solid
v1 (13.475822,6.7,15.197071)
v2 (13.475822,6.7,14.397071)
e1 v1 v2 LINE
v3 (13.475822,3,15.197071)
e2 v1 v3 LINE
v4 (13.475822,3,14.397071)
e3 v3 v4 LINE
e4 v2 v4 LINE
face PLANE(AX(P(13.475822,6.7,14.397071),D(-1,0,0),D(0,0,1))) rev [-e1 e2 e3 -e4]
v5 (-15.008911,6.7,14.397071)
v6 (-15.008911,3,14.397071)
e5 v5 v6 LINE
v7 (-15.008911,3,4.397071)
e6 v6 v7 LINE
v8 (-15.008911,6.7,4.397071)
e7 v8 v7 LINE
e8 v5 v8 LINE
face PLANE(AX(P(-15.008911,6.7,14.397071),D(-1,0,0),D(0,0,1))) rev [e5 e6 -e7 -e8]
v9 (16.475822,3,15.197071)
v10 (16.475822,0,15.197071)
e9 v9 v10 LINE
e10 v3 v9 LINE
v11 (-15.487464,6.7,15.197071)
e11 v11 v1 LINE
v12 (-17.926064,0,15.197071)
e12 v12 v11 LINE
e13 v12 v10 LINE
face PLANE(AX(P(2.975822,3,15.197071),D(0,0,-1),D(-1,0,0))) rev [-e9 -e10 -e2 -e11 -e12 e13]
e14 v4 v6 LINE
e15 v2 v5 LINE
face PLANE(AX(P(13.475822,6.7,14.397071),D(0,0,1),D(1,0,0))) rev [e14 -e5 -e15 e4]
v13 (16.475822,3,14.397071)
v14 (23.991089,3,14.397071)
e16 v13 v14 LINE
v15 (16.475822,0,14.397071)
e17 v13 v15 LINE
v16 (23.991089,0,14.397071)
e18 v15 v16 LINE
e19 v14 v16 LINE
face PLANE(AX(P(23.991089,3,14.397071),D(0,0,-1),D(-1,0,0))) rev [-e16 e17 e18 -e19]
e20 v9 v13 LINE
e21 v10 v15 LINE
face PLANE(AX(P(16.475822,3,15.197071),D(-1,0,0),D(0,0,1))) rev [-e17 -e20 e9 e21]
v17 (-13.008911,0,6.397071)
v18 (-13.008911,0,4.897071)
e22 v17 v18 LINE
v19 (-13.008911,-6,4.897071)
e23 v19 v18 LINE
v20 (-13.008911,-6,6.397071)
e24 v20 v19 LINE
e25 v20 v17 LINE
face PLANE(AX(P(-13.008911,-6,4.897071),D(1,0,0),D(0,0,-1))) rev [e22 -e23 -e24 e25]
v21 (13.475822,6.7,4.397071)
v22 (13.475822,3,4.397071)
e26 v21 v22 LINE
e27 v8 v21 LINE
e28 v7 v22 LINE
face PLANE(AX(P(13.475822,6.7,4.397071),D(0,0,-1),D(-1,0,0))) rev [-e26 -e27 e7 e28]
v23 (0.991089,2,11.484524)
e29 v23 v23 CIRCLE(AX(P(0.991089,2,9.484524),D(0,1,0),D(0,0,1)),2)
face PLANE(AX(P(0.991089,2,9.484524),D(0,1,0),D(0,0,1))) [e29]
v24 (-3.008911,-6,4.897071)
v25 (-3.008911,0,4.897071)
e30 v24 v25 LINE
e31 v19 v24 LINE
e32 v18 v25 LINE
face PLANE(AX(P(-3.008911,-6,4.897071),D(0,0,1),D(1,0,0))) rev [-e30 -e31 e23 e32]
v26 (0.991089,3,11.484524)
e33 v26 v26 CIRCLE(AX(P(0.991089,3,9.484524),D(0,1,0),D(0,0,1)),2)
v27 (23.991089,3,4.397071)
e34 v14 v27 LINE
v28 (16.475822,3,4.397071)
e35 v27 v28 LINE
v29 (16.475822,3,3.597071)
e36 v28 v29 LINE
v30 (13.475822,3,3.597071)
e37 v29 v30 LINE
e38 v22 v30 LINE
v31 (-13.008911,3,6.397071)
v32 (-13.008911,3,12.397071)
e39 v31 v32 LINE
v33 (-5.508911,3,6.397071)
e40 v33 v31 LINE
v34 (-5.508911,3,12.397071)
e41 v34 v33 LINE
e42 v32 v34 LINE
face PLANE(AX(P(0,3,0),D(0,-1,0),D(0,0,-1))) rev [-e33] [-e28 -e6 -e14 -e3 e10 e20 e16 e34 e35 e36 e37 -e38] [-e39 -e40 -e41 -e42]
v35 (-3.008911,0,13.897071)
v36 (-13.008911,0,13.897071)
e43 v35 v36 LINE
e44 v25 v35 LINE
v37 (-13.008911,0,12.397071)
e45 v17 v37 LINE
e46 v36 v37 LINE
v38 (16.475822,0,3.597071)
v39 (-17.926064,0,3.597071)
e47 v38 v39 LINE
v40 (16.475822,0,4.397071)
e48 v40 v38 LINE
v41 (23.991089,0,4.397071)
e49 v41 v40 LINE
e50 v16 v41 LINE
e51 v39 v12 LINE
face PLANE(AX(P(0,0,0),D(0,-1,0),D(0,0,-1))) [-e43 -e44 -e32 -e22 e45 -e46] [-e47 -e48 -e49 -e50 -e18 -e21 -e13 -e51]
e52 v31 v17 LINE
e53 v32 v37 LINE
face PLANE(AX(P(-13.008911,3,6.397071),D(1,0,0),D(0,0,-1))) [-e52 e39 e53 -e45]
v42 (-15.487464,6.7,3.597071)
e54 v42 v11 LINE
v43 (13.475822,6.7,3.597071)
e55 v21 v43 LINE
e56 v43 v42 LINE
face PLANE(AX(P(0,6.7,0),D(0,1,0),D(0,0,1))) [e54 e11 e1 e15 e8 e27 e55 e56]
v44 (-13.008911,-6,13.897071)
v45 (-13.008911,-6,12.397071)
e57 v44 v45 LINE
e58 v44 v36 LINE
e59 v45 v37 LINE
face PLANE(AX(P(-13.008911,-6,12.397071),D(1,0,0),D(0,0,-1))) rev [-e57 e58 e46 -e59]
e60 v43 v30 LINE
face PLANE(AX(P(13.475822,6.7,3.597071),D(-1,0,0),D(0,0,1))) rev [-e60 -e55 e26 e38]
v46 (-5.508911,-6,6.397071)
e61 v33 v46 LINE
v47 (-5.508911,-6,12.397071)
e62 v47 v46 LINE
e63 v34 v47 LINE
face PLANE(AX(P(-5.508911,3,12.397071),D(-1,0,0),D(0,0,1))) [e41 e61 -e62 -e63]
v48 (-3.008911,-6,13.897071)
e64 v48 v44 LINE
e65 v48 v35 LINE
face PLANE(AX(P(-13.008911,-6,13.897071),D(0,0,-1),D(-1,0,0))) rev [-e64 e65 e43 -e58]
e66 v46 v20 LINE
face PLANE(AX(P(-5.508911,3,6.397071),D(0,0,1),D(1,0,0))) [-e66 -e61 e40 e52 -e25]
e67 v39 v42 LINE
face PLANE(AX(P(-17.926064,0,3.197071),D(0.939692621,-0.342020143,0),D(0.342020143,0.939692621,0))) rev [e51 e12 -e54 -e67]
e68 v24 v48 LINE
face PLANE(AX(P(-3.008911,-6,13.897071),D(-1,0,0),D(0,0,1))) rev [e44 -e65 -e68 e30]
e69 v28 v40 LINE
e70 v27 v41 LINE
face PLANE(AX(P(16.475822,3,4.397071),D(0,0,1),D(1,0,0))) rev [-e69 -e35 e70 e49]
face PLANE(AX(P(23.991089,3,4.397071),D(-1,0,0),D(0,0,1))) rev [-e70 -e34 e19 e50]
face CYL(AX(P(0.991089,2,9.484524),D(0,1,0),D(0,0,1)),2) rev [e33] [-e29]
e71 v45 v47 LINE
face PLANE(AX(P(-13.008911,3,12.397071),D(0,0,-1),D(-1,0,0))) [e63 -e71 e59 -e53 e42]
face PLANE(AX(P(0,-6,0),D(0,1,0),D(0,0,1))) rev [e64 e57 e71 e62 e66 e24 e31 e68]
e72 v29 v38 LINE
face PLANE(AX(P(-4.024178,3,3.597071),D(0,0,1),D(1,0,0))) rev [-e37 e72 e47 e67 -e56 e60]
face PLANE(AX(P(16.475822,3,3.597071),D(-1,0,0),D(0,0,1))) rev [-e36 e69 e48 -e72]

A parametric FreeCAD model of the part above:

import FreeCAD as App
import Part
import Sketcher
Q = App.Units.Quantity


def add_polygon(sketch, points):
    """Adds a closed chain of lines whose ends are joined by coincident constraints."""
    first, n = sketch.GeometryCount, len(points)
    for a, b in zip(points, points[1:] + points[:1]):
        sketch.addGeometry(Part.LineSegment(App.Vector(*a, 0), App.Vector(*b, 0)), False)
    for i in range(n):
        sketch.addConstraint(Sketcher.Constraint("Coincident", first + i, 2, first + (i + 1) % n, 1))

doc = App.newDocument("Part")
body = doc.addObject("PartDesign::Body", "Body")

# Sketch on XZ plane
sketch1 = body.newObject("Sketcher::SketchObject", "Sketch")
sketch1.AttachmentSupport = (doc.getObject("XZ_Plane"), [""])
sketch1.MapMode = "FlatFace"
add_polygon(sketch1, [(24, 14.4), (24, 4.4), (16.5, 4.4), (16.5, 3.6), (-16, 3.6), (-16, 15.2), (16.5, 15.2), (16.5, 14.4)])  # lines 0-7
add_polygon(sketch1, [(-13, 12.4), (-13, 6.4), (-5.5, 6.4), (-5.5, 12.4)])  # lines 8-11
sketch1.addConstraint([
    Sketcher.Constraint("Vertical", 0),
    Sketcher.Constraint("Horizontal", 1),
    Sketcher.Constraint("Vertical", 2),
    Sketcher.Constraint("Horizontal", 3),
    Sketcher.Constraint("Vertical", 4),
    Sketcher.Constraint("Horizontal", 5),
    Sketcher.Constraint("Vertical", 6),
    Sketcher.Constraint("Horizontal", 7),
    Sketcher.Constraint("Vertical", 8),
    Sketcher.Constraint("Horizontal", 9),
    Sketcher.Constraint("Vertical", 10),
    Sketcher.Constraint("Horizontal", 11),
    Sketcher.Constraint("Vertical", 2, 2, 5, 2),
    Sketcher.Constraint("Equal", 2, 6),
    Sketcher.Constraint("DistanceY", 0, 2, 0, 1, Q("10 mm")),
    Sketcher.Constraint("DistanceY", 8, 2, 8, 1, Q("6 mm")),
    Sketcher.Constraint("DistanceX", 9, 1, 9, 2, Q("7.5 mm")),
    Sketcher.Constraint("DistanceY", 2, 2, 2, 1, Q("0.8 mm")),
    Sketcher.Constraint("DistanceX", 3, 2, 0, 2, Q("40 mm")),
    Sketcher.Constraint("DistanceX", 3, 2, 8, 2, Q("3 mm")),
    Sketcher.Constraint("DistanceY", 1, 2, 8, 2, Q("2 mm")),
    Sketcher.Constraint("DistanceX", 1, 2, 1, 1, Q("7.515267 mm")),
    Sketcher.Constraint("DistanceX", -1, 1, 0, 2, Q("23.991089 mm")),
    Sketcher.Constraint("DistanceY", -1, 1, 0, 2, Q("4.397071 mm")),
])
pad1 = body.newObject("PartDesign::Pad", "Pad")
pad1.Profile = sketch1
pad1.Length = 3
pad1.Reversed = True

# Sketch on XZ plane
sketch2 = body.newObject("Sketcher::SketchObject", "Sketch001")
sketch2.AttachmentSupport = (doc.getObject("XZ_Plane"), [""])
sketch2.MapMode = "FlatFace"
add_polygon(sketch2, [(-13, 13.9), (-13, 12.4), (-5.5, 12.4), (-5.5, 6.4), (-13, 6.4), (-13, 4.9), (-3, 4.9), (-3, 13.9)])  # lines 0-7
sketch2.addConstraint([
    Sketcher.Constraint("Vertical", 0),
    Sketcher.Constraint("Horizontal", 1),
    Sketcher.Constraint("Vertical", 2),
    Sketcher.Constraint("Horizontal", 3),
    Sketcher.Constraint("Vertical", 4),
    Sketcher.Constraint("Horizontal", 5),
    Sketcher.Constraint("Vertical", 6),
    Sketcher.Constraint("Horizontal", 7),
    Sketcher.Constraint("Vertical", 0, 2, 3, 2),
    Sketcher.Constraint("Equal", 0, 4),
    Sketcher.Constraint("DistanceX", 5, 1, 5, 2, Q("10 mm")),
    Sketcher.Constraint("DistanceY", 2, 2, 2, 1, Q("6 mm")),
    Sketcher.Constraint("DistanceY", 6, 1, 6, 2, Q("9 mm")),
    Sketcher.Constraint("DistanceX", 1, 1, 1, 2, Q("7.5 mm")),
    Sketcher.Constraint("DistanceX", 0, 2, -1, 1, Q("13.008911 mm")),
    Sketcher.Constraint("DistanceY", -1, 1, 0, 2, Q("12.397071 mm")),
])
pad2 = body.newObject("PartDesign::Pad", "Pad001")
pad2.Profile = sketch2
pad2.Length = 6

# Sketch on XZ plane
sketch3 = body.newObject("Sketcher::SketchObject", "Sketch002")
sketch3.AttachmentSupport = (doc.getObject("XZ_Plane"), [""])
sketch3.MapMode = "FlatFace"
sketch3.AttachmentOffset = App.Placement(App.Vector(0, 0, -3), App.Rotation())
sketch3.addGeometry(Part.Circle(App.Vector(1, 9.5, 0), App.Vector(0, 0, 1), 2), False)
sketch3.addConstraint([
    Sketcher.Constraint("Diameter", 0, Q("4 mm")),
    Sketcher.Constraint("DistanceX", -1, 1, 0, 3, Q("0.991089 mm")),
    Sketcher.Constraint("DistanceY", -1, 1, 0, 3, Q("9.484524 mm")),
])
pocket1 = body.newObject("PartDesign::Pocket", "Pocket")
pocket1.Profile = sketch3
pocket1.Length = 1
pocket1.Reversed = True

# Sketch on XZ plane
sketch4 = body.newObject("Sketcher::SketchObject", "Sketch003")
sketch4.AttachmentSupport = (doc.getObject("XZ_Plane"), [""])
sketch4.MapMode = "FlatFace"
sketch4.AttachmentOffset = App.Placement(App.Vector(0, 0, -3), App.Rotation())
add_polygon(sketch4, [(13.5, 3.6), (-16, 3.6), (-16, 15.2), (13.5, 15.2), (13.5, 14.4), (-15, 14.4), (-15, 4.4), (13.5, 4.4)])  # lines 0-7
sketch4.addConstraint([
    Sketcher.Constraint("Horizontal", 0),
    Sketcher.Constraint("Vertical", 1),
    Sketcher.Constraint("Horizontal", 2),
    Sketcher.Constraint("Vertical", 3),
    Sketcher.Constraint("Horizontal", 4),
    Sketcher.Constraint("Vertical", 5),
    Sketcher.Constraint("Horizontal", 6),
    Sketcher.Constraint("Vertical", 7),
    Sketcher.Constraint("Vertical", 3, 2, 6, 2),
    Sketcher.Constraint("Equal", 3, 7),
    Sketcher.Constraint("DistanceY", 5, 2, 5, 1, Q("10 mm")),
    Sketcher.Constraint("DistanceY", 1, 1, 1, 2, Q("11.6 mm")),
    Sketcher.Constraint("DistanceX", 1, 2, 4, 2, Q("1 mm")),
    Sketcher.Constraint("DistanceX", 0, 2, 0, 1, Q("29.484733 mm")),
    Sketcher.Constraint("DistanceX", 0, 2, -1, 1, Q("16.008911 mm")),
    Sketcher.Constraint("DistanceY", -1, 1, 0, 2, Q("3.597071 mm")),
])
pad3 = body.newObject("PartDesign::Pad", "Pad002")
pad3.Profile = sketch4
pad3.Length = 3.7
pad3.Reversed = True

# Sketch on XY plane
sketch5 = body.newObject("Sketcher::SketchObject", "Sketch004")
sketch5.AttachmentSupport = (doc.getObject("XY_Plane"), [""])
sketch5.MapMode = "FlatFace"
sketch5.AttachmentOffset = App.Placement(App.Vector(0, 0, 15.197071), App.Rotation())
add_polygon(sketch5, [(-16, 0), (-16, 6.7), (-18.4, 0)])  # lines 0-2
sketch5.addConstraint([
    Sketcher.Constraint("Vertical", 0),
    Sketcher.Constraint("Horizontal", 2),
    Sketcher.Constraint("PointOnObject", 1, 2, -1),
    Sketcher.Constraint("Angle", 1, Q("-110 deg")),
    Sketcher.Constraint("DistanceY", 0, 1, 0, 2, Q("6.7 mm")),
    Sketcher.Constraint("DistanceX", 0, 2, -1, 1, Q("16.008911 mm")),
])
pad4 = body.newObject("PartDesign::Pad", "Pad003")
pad4.Profile = sketch5
pad4.Length = 11.6
pad4.Reversed = True

# Sketch on XY plane
sketch6 = body.newObject("Sketcher::SketchObject", "Sketch005")
sketch6.AttachmentSupport = (doc.getObject("XY_Plane"), [""])
sketch6.MapMode = "FlatFace"
sketch6.AttachmentOffset = App.Placement(App.Vector(0, 0, 15.197071), App.Rotation())
add_polygon(sketch6, [(-16, 6.7), (-18.4, 0), (-17.9, 0), (-15.5, 6.7)])  # lines 0-3
sketch6.addConstraint([
    Sketcher.Constraint("Horizontal", 1),
    Sketcher.Constraint("Horizontal", 3),
    Sketcher.Constraint("PointOnObject", 0, 2, -1),
    Sketcher.Constraint("Parallel", 0, 2),
    Sketcher.Constraint("Angle", 0, Q("-110 deg")),
    Sketcher.Constraint("DistanceY", -1, 1, 2, 2, Q("6.7 mm")),
    Sketcher.Constraint("DistanceX", 1, 1, 1, 2, Q("0.521447 mm")),
    Sketcher.Constraint("DistanceX", 0, 2, -1, 1, Q("18.447511 mm")),
])
pocket2 = body.newObject("PartDesign::Pocket", "Pocket001")
pocket2.Profile = sketch6
pocket2.Length = 12

doc.recompute()
